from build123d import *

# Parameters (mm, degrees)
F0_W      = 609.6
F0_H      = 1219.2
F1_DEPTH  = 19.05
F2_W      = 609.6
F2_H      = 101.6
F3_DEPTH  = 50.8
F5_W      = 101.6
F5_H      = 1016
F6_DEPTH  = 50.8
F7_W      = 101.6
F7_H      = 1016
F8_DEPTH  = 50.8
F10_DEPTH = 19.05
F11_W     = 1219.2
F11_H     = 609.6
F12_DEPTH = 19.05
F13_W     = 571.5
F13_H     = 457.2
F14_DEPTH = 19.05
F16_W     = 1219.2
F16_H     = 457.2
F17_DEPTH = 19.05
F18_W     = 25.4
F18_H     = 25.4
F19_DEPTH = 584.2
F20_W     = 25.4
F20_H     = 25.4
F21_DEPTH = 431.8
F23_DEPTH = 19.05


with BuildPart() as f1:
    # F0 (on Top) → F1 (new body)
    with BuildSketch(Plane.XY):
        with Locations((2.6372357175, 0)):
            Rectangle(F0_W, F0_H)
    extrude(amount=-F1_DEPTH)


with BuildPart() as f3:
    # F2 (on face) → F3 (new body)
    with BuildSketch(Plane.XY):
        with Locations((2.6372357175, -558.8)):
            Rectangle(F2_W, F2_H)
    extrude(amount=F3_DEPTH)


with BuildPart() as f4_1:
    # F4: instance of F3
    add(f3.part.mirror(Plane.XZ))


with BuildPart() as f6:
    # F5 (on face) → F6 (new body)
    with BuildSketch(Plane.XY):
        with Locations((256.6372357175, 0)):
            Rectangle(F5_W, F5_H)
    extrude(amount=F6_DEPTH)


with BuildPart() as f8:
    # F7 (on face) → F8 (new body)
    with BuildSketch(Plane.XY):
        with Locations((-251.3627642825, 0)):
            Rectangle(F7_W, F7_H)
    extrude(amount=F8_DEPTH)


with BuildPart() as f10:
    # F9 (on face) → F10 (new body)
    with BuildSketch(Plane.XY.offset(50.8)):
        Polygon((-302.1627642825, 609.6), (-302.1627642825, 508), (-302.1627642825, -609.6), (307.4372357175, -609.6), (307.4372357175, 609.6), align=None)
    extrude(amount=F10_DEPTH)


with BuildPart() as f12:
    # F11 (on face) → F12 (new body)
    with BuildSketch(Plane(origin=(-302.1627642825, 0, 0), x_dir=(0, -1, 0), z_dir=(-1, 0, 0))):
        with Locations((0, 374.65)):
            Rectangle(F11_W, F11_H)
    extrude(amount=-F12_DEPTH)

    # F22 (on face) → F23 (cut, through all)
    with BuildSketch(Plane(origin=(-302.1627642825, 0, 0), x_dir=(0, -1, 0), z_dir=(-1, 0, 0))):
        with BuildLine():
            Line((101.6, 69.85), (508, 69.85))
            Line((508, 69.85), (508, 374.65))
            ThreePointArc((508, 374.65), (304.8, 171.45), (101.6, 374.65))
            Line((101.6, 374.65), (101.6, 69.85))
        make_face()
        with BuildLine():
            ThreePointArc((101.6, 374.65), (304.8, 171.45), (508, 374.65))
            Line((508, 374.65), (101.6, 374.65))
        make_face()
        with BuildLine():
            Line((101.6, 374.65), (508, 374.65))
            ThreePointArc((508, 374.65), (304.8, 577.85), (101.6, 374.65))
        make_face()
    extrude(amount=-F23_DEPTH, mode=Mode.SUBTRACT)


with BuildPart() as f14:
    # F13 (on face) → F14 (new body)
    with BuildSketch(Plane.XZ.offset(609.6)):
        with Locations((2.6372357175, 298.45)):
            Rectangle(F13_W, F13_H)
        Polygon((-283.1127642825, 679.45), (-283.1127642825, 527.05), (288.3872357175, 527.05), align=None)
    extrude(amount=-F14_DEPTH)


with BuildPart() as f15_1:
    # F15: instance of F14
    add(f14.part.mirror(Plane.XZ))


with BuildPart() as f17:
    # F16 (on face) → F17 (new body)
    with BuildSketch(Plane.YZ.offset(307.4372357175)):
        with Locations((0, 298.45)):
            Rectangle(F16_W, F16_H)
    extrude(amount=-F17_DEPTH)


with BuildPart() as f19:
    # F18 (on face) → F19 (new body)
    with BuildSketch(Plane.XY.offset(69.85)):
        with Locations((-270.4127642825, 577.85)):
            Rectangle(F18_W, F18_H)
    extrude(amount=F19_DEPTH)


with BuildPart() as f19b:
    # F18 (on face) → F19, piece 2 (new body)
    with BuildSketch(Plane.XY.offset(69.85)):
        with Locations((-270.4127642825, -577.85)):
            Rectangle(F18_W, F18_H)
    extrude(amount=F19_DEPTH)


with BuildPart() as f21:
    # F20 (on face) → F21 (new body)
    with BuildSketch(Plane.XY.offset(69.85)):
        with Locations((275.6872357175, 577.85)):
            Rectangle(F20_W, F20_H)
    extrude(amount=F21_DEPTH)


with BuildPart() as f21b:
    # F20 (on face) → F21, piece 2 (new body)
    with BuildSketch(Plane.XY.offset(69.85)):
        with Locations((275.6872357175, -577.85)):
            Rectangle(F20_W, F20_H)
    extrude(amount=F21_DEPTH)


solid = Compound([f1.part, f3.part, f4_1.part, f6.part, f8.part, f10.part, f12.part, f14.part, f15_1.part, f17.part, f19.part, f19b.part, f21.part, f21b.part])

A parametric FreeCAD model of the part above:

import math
import FreeCAD as App
import Part
import Sketcher

V = App.Vector
Q = App.Units.Quantity

doc = App.newDocument("Part")
body = doc.addObject("PartDesign::Body", "Body")

# Sketch on XY plane
sketch1 = body.newObject("Sketcher::SketchObject", "Sketch")
sketch1.AttachmentSupport = (doc.getObject("XY_Plane"), [""])
sketch1.MapMode = "FlatFace"
sketch1.addGeometry([
    Part.LineSegment(V(-302, 610, 0), V(-302, -610, 0)),
    Part.LineSegment(V(-302, -610, 0), V(307, -610, 0)),
    Part.LineSegment(V(307, -610, 0), V(307, 610, 0)),
    Part.LineSegment(V(307, 610, 0), V(-302, 610, 0)),
], False)
sketch1.addConstraint([
    Sketcher.Constraint("Coincident", 0, 2, 1, 1),
    Sketcher.Constraint("Coincident", 1, 2, 2, 1),
    Sketcher.Constraint("Coincident", 2, 2, 3, 1),
    Sketcher.Constraint("Coincident", 3, 2, 0, 1),
    Sketcher.Constraint("Vertical", 0),
    Sketcher.Constraint("Horizontal", 1),
    Sketcher.Constraint("Vertical", 2),
    Sketcher.Constraint("Horizontal", 3),
    Sketcher.Constraint("DistanceX", 1, 1, 1, 2, Q("24 in")),
    Sketcher.Constraint("DistanceY", 0, 2, 0, 1, Q("48 in")),
    Sketcher.Constraint("DistanceY", 0, 2, -1, 1, Q("24 in")),
    Sketcher.Constraint("DistanceX", 0, 2, -1, 1, 302.162764),
])
pad1 = body.newObject("PartDesign::Pad", "Pad")
pad1.Profile = sketch1
pad1.Length = Q("0.75 in")
pad1.Reversed = True
body2 = doc.addObject("PartDesign::Body", "Body001")

# Sketch on XY plane
sketch2 = body2.newObject("Sketcher::SketchObject", "Sketch001")
sketch2.AttachmentSupport = (doc.getObject("XY_Plane001"), [""])
sketch2.MapMode = "FlatFace"
sketch2.addGeometry([
    Part.LineSegment(V(-302, -508, 0), V(-302, -610, 0)),
    Part.LineSegment(V(-302, -610, 0), V(307, -610, 0)),
    Part.LineSegment(V(307, -610, 0), V(307, -508, 0)),
    Part.LineSegment(V(307, -508, 0), V(-302, -508, 0)),
], False)
sketch2.addConstraint([
    Sketcher.Constraint("Coincident", 0, 2, 1, 1),
    Sketcher.Constraint("Coincident", 1, 2, 2, 1),
    Sketcher.Constraint("Coincident", 2, 2, 3, 1),
    Sketcher.Constraint("Coincident", 3, 2, 0, 1),
    Sketcher.Constraint("Vertical", 0),
    Sketcher.Constraint("Horizontal", 1),
    Sketcher.Constraint("Vertical", 2),
    Sketcher.Constraint("Horizontal", 3),
    Sketcher.Constraint("DistanceX", 1, 1, 1, 2, Q("24 in")),
    Sketcher.Constraint("DistanceY", 0, 2, 0, 1, Q("4 in")),
    Sketcher.Constraint("DistanceY", 0, 2, -1, 1, Q("24 in")),
    Sketcher.Constraint("DistanceX", 0, 2, -1, 1, 302.162764),
])
pad2 = body2.newObject("PartDesign::Pad", "Pad001")
pad2.Profile = sketch2
pad2.Length = Q("2 in")
body3 = doc.addObject("PartDesign::Body", "Body002")
doc.recompute()

mirroring = doc.addObject("Part::Mirroring", "Mirroring")
mirroring.Source = body2
mirroring.Base = V(0, 0, 0)
mirroring.Normal = V(0, -1, 0)
body3.BaseFeature = mirroring
doc.recompute()
body4 = doc.addObject("PartDesign::Body", "Body003")

# Sketch on XY plane
sketch3 = body4.newObject("Sketcher::SketchObject", "Sketch002")
sketch3.AttachmentSupport = (doc.getObject("XY_Plane003"), [""])
sketch3.MapMode = "FlatFace"
sketch3.addGeometry([
    Part.LineSegment(V(206, 508, 0), V(206, -508, 0)),
    Part.LineSegment(V(206, -508, 0), V(307, -508, 0)),
    Part.LineSegment(V(307, -508, 0), V(307, 508, 0)),
    Part.LineSegment(V(307, 508, 0), V(206, 508, 0)),
], False)
sketch3.addConstraint([
    Sketcher.Constraint("Coincident", 0, 2, 1, 1),
    Sketcher.Constraint("Coincident", 1, 2, 2, 1),
    Sketcher.Constraint("Coincident", 2, 2, 3, 1),
    Sketcher.Constraint("Coincident", 3, 2, 0, 1),
    Sketcher.Constraint("Vertical", 0),
    Sketcher.Constraint("Horizontal", 1),
    Sketcher.Constraint("Vertical", 2),
    Sketcher.Constraint("Horizontal", 3),
    Sketcher.Constraint("DistanceX", 1, 1, 1, 2, Q("4 in")),
    Sketcher.Constraint("DistanceY", 0, 2, 0, 1, Q("40 in")),
    Sketcher.Constraint("DistanceY", 0, 2, -1, 1, Q("20 in")),
    Sketcher.Constraint("DistanceX", -1, 1, 0, 2, 205.837236),
])
pad3 = body4.newObject("PartDesign::Pad", "Pad002")
pad3.Profile = sketch3
pad3.Length = Q("2 in")
body5 = doc.addObject("PartDesign::Body", "Body004")

# Sketch on XY plane
sketch4 = body5.newObject("Sketcher::SketchObject", "Sketch003")
sketch4.AttachmentSupport = (doc.getObject("XY_Plane004"), [""])
sketch4.MapMode = "FlatFace"
sketch4.addGeometry([
    Part.LineSegment(V(-302, 508, 0), V(-302, -508, 0)),
    Part.LineSegment(V(-302, -508, 0), V(-201, -508, 0)),
    Part.LineSegment(V(-201, -508, 0), V(-201, 508, 0)),
    Part.LineSegment(V(-201, 508, 0), V(-302, 508, 0)),
], False)
sketch4.addConstraint([
    Sketcher.Constraint("Coincident", 0, 2, 1, 1),
    Sketcher.Constraint("Coincident", 1, 2, 2, 1),
    Sketcher.Constraint("Coincident", 2, 2, 3, 1),
    Sketcher.Constraint("Coincident", 3, 2, 0, 1),
    Sketcher.Constraint("Vertical", 0),
    Sketcher.Constraint("Horizontal", 1),
    Sketcher.Constraint("Vertical", 2),
    Sketcher.Constraint("Horizontal", 3),
    Sketcher.Constraint("DistanceX", 1, 1, 1, 2, Q("4 in")),
    Sketcher.Constraint("DistanceY", 0, 2, 0, 1, Q("40 in")),
    Sketcher.Constraint("DistanceY", 0, 2, -1, 1, Q("20 in")),
    Sketcher.Constraint("DistanceX", 0, 2, -1, 1, 302.162764),
])
pad4 = body5.newObject("PartDesign::Pad", "Pad003")
pad4.Profile = sketch4
pad4.Length = Q("2 in")
body6 = doc.addObject("PartDesign::Body", "Body005")

# Sketch on XY plane
sketch5 = body6.newObject("Sketcher::SketchObject", "Sketch004")
sketch5.AttachmentSupport = (doc.getObject("XY_Plane005"), [""])
sketch5.MapMode = "FlatFace"
sketch5.AttachmentOffset = App.Placement(V(0, 0, 2 * 25.4), App.Rotation())
sketch5.addGeometry([
    Part.LineSegment(V(-302, 610, 0), V(-302, -610, 0)),
    Part.LineSegment(V(-302, -610, 0), V(307, -610, 0)),
    Part.LineSegment(V(307, -610, 0), V(307, 610, 0)),
    Part.LineSegment(V(307, 610, 0), V(-302, 610, 0)),
], False)
sketch5.addConstraint([
    Sketcher.Constraint("Coincident", 0, 2, 1, 1),
    Sketcher.Constraint("Coincident", 1, 2, 2, 1),
    Sketcher.Constraint("Coincident", 2, 2, 3, 1),
    Sketcher.Constraint("Coincident", 3, 2, 0, 1),
    Sketcher.Constraint("Vertical", 0),
    Sketcher.Constraint("Horizontal", 1),
    Sketcher.Constraint("Vertical", 2),
    Sketcher.Constraint("Horizontal", 3),
    Sketcher.Constraint("DistanceX", 1, 1, 1, 2, Q("24 in")),
    Sketcher.Constraint("DistanceY", 0, 2, 0, 1, Q("48 in")),
    Sketcher.Constraint("DistanceY", 0, 2, -1, 1, Q("24 in")),
    Sketcher.Constraint("DistanceX", 0, 2, -1, 1, 302.162764),
])
pad5 = body6.newObject("PartDesign::Pad", "Pad004")
pad5.Profile = sketch5
pad5.Length = Q("0.75 in")
body7 = doc.addObject("PartDesign::Body", "Body006")

# Sketch on YZ plane
sketch6 = body7.newObject("Sketcher::SketchObject", "Sketch005")
sketch6.AttachmentSupport = (doc.getObject("YZ_Plane006"), [""])
sketch6.MapMode = "FlatFace"
sketch6.AttachmentOffset = App.Placement(V(0, 0, -302.162764), App.Rotation())
sketch6.addGeometry([
    Part.LineSegment(V(610, 679, 0), V(610, 70, 0)),
    Part.LineSegment(V(610, 70, 0), V(-610, 70, 0)),
    Part.LineSegment(V(-610, 70, 0), V(-610, 679, 0)),
    Part.LineSegment(V(-610, 679, 0), V(610, 679, 0)),
], False)
sketch6.addConstraint([
    Sketcher.Constraint("Coincident", 0, 2, 1, 1),
    Sketcher.Constraint("Coincident", 1, 2, 2, 1),
    Sketcher.Constraint("Coincident", 2, 2, 3, 1),
    Sketcher.Constraint("Coincident", 3, 2, 0, 1),
    Sketcher.Constraint("Vertical", 0),
    Sketcher.Constraint("Horizontal", 1),
    Sketcher.Constraint("Vertical", 2),
    Sketcher.Constraint("Horizontal", 3),
    Sketcher.Constraint("DistanceX", 1, 2, 1, 1, Q("48 in")),
    Sketcher.Constraint("DistanceY", 0, 2, 0, 1, Q("24 in")),
    Sketcher.Constraint("DistanceX", -1, 1, 0, 2, Q("24 in")),
    Sketcher.Constraint("DistanceY", -1, 1, 0, 2, Q("2.75 in")),
])
pad6 = body7.newObject("PartDesign::Pad", "Pad005")
pad6.Profile = sketch6
pad6.Length = Q("0.75 in")

# Sketch on YZ plane
sketch7 = body7.newObject("Sketcher::SketchObject", "Sketch006")
sketch7.AttachmentSupport = (doc.getObject("YZ_Plane006"), [""])
sketch7.MapMode = "FlatFace"
sketch7.AttachmentOffset = App.Placement(V(0, 0, -302.162764), App.Rotation())
sketch7.addGeometry([
    Part.LineSegment(V(-102, 70, 0), V(-508, 70, 0)),
    Part.LineSegment(V(-508, 70, 0), V(-508, 375, 0)),
    Part.ArcOfCircle(Part.Circle(V(-305, 375, 0), V(0, 0, 1), 203), math.radians(0), math.radians(180)),
    Part.LineSegment(V(-102, 375, 0), V(-102, 70, 0)),
], False)
sketch7.addConstraint([
    Sketcher.Constraint("Coincident", 0, 2, 1, 1),
    Sketcher.Constraint("Tangent", 1, 2, 2, 2),
    Sketcher.Constraint("Tangent", 2, 1, 3, 1),
    Sketcher.Constraint("Coincident", 3, 2, 0, 1),
    Sketcher.Constraint("Horizontal", 0),
    Sketcher.Constraint("Vertical", 1),
    Sketcher.Constraint("Vertical", 3),
    Sketcher.Constraint("Radius", 2, Q("8 in")),
    Sketcher.Constraint("DistanceY", 1, 1, 1, 2, Q("12 in")),
    Sketcher.Constraint("DistanceX", 2, 3, -1, 1, Q("12 in")),
    Sketcher.Constraint("DistanceY", -1, 1, 2, 3, Q("14.75 in")),
])
pocket1 = body7.newObject("PartDesign::Pocket", "Pocket")
pocket1.Profile = sketch7
pocket1.Type = "ThroughAll"
pocket1.Reversed = True
body8 = doc.addObject("PartDesign::Body", "Body007")

# Sketch on XZ plane
sketch8 = body8.newObject("Sketcher::SketchObject", "Sketch007")
sketch8.AttachmentSupport = (doc.getObject("XZ_Plane007"), [""])
sketch8.MapMode = "FlatFace"
sketch8.AttachmentOffset = App.Placement(V(0, 0, 24 * 25.4), App.Rotation())
sketch8.addGeometry([
    Part.LineSegment(V(-283, 70, 0), V(288, 70, 0)),
    Part.LineSegment(V(288, 70, 0), V(288, 527, 0)),
    Part.LineSegment(V(288, 527, 0), V(-283, 679, 0)),
    Part.LineSegment(V(-283, 679, 0), V(-283, 70, 0)),
], False)
sketch8.addConstraint([
    Sketcher.Constraint("Coincident", 0, 2, 1, 1),
    Sketcher.Constraint("Coincident", 1, 2, 2, 1),
    Sketcher.Constraint("Coincident", 2, 2, 3, 1),
    Sketcher.Constraint("Coincident", 3, 2, 0, 1),
    Sketcher.Constraint("Horizontal", 0),
    Sketcher.Constraint("Vertical", 1),
    Sketcher.Constraint("Vertical", 3),
    Sketcher.Constraint("DistanceY", 1, 1, 1, 2, Q("18 in")),
    Sketcher.Constraint("DistanceY", 3, 2, 3, 1, Q("24 in")),
    Sketcher.Constraint("DistanceX", 0, 1, 0, 2, Q("22.5 in")),
    Sketcher.Constraint("DistanceY", -1, 1, 0, 2, Q("2.75 in")),
    Sketcher.Constraint("DistanceX", -1, 1, 0, 2, 288.387236),
])
pad7 = body8.newObject("PartDesign::Pad", "Pad006")
pad7.Profile = sketch8
pad7.Length = Q("0.75 in")
pad7.Reversed = True
body9 = doc.addObject("PartDesign::Body", "Body008")
doc.recompute()

mirroring2 = doc.addObject("Part::Mirroring", "Mirroring001")
mirroring2.Source = body8
mirroring2.Base = V(0, 0, 0)
mirroring2.Normal = V(0, -1, 0)
body9.BaseFeature = mirroring2
doc.recompute()
body10 = doc.addObject("PartDesign::Body", "Body009")

# Sketch on YZ plane
sketch9 = body10.newObject("Sketcher::SketchObject", "Sketch008")
sketch9.AttachmentSupport = (doc.getObject("YZ_Plane009"), [""])
sketch9.MapMode = "FlatFace"
sketch9.AttachmentOffset = App.Placement(V(0, 0, 307.437236), App.Rotation())
sketch9.addGeometry([
    Part.LineSegment(V(-610, 527, 0), V(-610, 70, 0)),
    Part.LineSegment(V(-610, 70, 0), V(610, 70, 0)),
    Part.LineSegment(V(610, 70, 0), V(610, 527, 0)),
    Part.LineSegment(V(610, 527, 0), V(-610, 527, 0)),
], False)
sketch9.addConstraint([
    Sketcher.Constraint("Coincident", 0, 2, 1, 1),
    Sketcher.Constraint("Coincident", 1, 2, 2, 1),
    Sketcher.Constraint("Coincident", 2, 2, 3, 1),
    Sketcher.Constraint("Coincident", 3, 2, 0, 1),
    Sketcher.Constraint("Vertical", 0),
    Sketcher.Constraint("Horizontal", 1),
    Sketcher.Constraint("Vertical", 2),
    Sketcher.Constraint("Horizontal", 3),
    Sketcher.Constraint("DistanceX", 1, 1, 1, 2, Q("48 in")),
    Sketcher.Constraint("DistanceY", 0, 2, 0, 1, Q("18 in")),
    Sketcher.Constraint("DistanceX", 0, 2, -1, 1, Q("24 in")),
    Sketcher.Constraint("DistanceY", -1, 1, 0, 2, Q("2.75 in")),
])
pad8 = body10.newObject("PartDesign::Pad", "Pad007")
pad8.Profile = sketch9
pad8.Length = Q("0.75 in")
pad8.Reversed = True
body11 = doc.addObject("PartDesign::Body", "Body010")

# Sketch on XY plane
sketch10 = body11.newObject("Sketcher::SketchObject", "Sketch009")
sketch10.AttachmentSupport = (doc.getObject("XY_Plane010"), [""])
sketch10.MapMode = "FlatFace"
sketch10.AttachmentOffset = App.Placement(V(0, 0, 2.75 * 25.4), App.Rotation())
sketch10.addGeometry([
    Part.LineSegment(V(-283, 591, 0), V(-283, 565, 0)),
    Part.LineSegment(V(-283, 565, 0), V(-258, 565, 0)),
    Part.LineSegment(V(-258, 565, 0), V(-258, 591, 0)),
    Part.LineSegment(V(-258, 591, 0), V(-283, 591, 0)),
], False)
sketch10.addConstraint([
    Sketcher.Constraint("Coincident", 0, 2, 1, 1),
    Sketcher.Constraint("Coincident", 1, 2, 2, 1),
    Sketcher.Constraint("Coincident", 2, 2, 3, 1),
    Sketcher.Constraint("Coincident", 3, 2, 0, 1),
    Sketcher.Constraint("Vertical", 0),
    Sketcher.Constraint("Horizontal", 1),
    Sketcher.Constraint("Vertical", 2),
    Sketcher.Constraint("Horizontal", 3),
    Sketcher.Constraint("Equal", 3, 0),
    Sketcher.Constraint("DistanceX", 1, 1, 1, 2, Q("1 in")),
    Sketcher.Constraint("DistanceY", -1, 1, 0, 2, Q("22.25 in")),
    Sketcher.Constraint("DistanceX", 0, 2, -1, 1, 283.112764),
])
pad9 = body11.newObject("PartDesign::Pad", "Pad008")
pad9.Profile = sketch10
pad9.Length = Q("23 in")
body12 = doc.addObject("PartDesign::Body", "Body011")

# Sketch on XY plane
sketch11 = body12.newObject("Sketcher::SketchObject", "Sketch010")
sketch11.AttachmentSupport = (doc.getObject("XY_Plane011"), [""])
sketch11.MapMode = "FlatFace"
sketch11.AttachmentOffset = App.Placement(V(0, 0, 2.75 * 25.4), App.Rotation())
sketch11.addGeometry([
    Part.LineSegment(V(-283, -565, 0), V(-283, -591, 0)),
    Part.LineSegment(V(-283, -591, 0), V(-258, -591, 0)),
    Part.LineSegment(V(-258, -591, 0), V(-258, -565, 0)),
    Part.LineSegment(V(-258, -565, 0), V(-283, -565, 0)),
], False)
sketch11.addConstraint([
    Sketcher.Constraint("Coincident", 0, 2, 1, 1),
    Sketcher.Constraint("Coincident", 1, 2, 2, 1),
    Sketcher.Constraint("Coincident", 2, 2, 3, 1),
    Sketcher.Constraint("Coincident", 3, 2, 0, 1),
    Sketcher.Constraint("Vertical", 0),
    Sketcher.Constraint("Horizontal", 1),
    Sketcher.Constraint("Vertical", 2),
    Sketcher.Constraint("Horizontal", 3),
    Sketcher.Constraint("Equal", 3, 0),
    Sketcher.Constraint("DistanceX", 1, 1, 1, 2, Q("1 in")),
    Sketcher.Constraint("DistanceY", 0, 2, -1, 1, Q("23.25 in")),
    Sketcher.Constraint("DistanceX", 0, 2, -1, 1, 283.112764),
])
pad10 = body12.newObject("PartDesign::Pad", "Pad009")
pad10.Profile = sketch11
pad10.Length = Q("23 in")
body13 = doc.addObject("PartDesign::Body", "Body012")

# Sketch on XY plane
sketch12 = body13.newObject("Sketcher::SketchObject", "Sketch011")
sketch12.AttachmentSupport = (doc.getObject("XY_Plane012"), [""])
sketch12.MapMode = "FlatFace"
sketch12.AttachmentOffset = App.Placement(V(0, 0, 2.75 * 25.4), App.Rotation())
sketch12.addGeometry([
    Part.LineSegment(V(263, 591, 0), V(263, 565, 0)),
    Part.LineSegment(V(263, 565, 0), V(288, 565, 0)),
    Part.LineSegment(V(288, 565, 0), V(288, 591, 0)),
    Part.LineSegment(V(288, 591, 0), V(263, 591, 0)),
], False)
sketch12.addConstraint([
    Sketcher.Constraint("Coincident", 0, 2, 1, 1),
    Sketcher.Constraint("Coincident", 1, 2, 2, 1),
    Sketcher.Constraint("Coincident", 2, 2, 3, 1),
    Sketcher.Constraint("Coincident", 3, 2, 0, 1),
    Sketcher.Constraint("Vertical", 0),
    Sketcher.Constraint("Horizontal", 1),
    Sketcher.Constraint("Vertical", 2),
    Sketcher.Constraint("Horizontal", 3),
    Sketcher.Constraint("Equal", 3, 0),
    Sketcher.Constraint("DistanceX", 1, 1, 1, 2, Q("1 in")),
    Sketcher.Constraint("DistanceY", -1, 1, 0, 2, Q("22.25 in")),
    Sketcher.Constraint("DistanceX", -1, 1, 0, 2, 262.987236),
])
pad11 = body13.newObject("PartDesign::Pad", "Pad010")
pad11.Profile = sketch12
pad11.Length = Q("17 in")
body14 = doc.addObject("PartDesign::Body", "Body013")

# Sketch on XY plane
sketch13 = body14.newObject("Sketcher::SketchObject", "Sketch012")
sketch13.AttachmentSupport = (doc.getObject("XY_Plane013"), [""])
sketch13.MapMode = "FlatFace"
sketch13.AttachmentOffset = App.Placement(V(0, 0, 2.75 * 25.4), App.Rotation())
sketch13.addGeometry([
    Part.LineSegment(V(263, -565, 0), V(263, -591, 0)),
    Part.LineSegment(V(263, -591, 0), V(288, -591, 0)),
    Part.LineSegment(V(288, -591, 0), V(288, -565, 0)),
    Part.LineSegment(V(288, -565, 0), V(263, -565, 0)),
], False)
sketch13.addConstraint([
    Sketcher.Constraint("Coincident", 0, 2, 1, 1),
    Sketcher.Constraint("Coincident", 1, 2, 2, 1),
    Sketcher.Constraint("Coincident", 2, 2, 3, 1),
    Sketcher.Constraint("Coincident", 3, 2, 0, 1),
    Sketcher.Constraint("Vertical", 0),
    Sketcher.Constraint("Horizontal", 1),
    Sketcher.Constraint("Vertical", 2),
    Sketcher.Constraint("Horizontal", 3),
    Sketcher.Constraint("Equal", 3, 0),
    Sketcher.Constraint("DistanceX", 1, 1, 1, 2, Q("1 in")),
    Sketcher.Constraint("DistanceY", 0, 2, -1, 1, Q("23.25 in")),
    Sketcher.Constraint("DistanceX", -1, 1, 0, 2, 262.987236),
])
pad12 = body14.newObject("PartDesign::Pad", "Pad011")
pad12.Profile = sketch13
pad12.Length = Q("17 in")
mirroring.Visibility = False
mirroring2.Visibility = False

doc.recompute()
